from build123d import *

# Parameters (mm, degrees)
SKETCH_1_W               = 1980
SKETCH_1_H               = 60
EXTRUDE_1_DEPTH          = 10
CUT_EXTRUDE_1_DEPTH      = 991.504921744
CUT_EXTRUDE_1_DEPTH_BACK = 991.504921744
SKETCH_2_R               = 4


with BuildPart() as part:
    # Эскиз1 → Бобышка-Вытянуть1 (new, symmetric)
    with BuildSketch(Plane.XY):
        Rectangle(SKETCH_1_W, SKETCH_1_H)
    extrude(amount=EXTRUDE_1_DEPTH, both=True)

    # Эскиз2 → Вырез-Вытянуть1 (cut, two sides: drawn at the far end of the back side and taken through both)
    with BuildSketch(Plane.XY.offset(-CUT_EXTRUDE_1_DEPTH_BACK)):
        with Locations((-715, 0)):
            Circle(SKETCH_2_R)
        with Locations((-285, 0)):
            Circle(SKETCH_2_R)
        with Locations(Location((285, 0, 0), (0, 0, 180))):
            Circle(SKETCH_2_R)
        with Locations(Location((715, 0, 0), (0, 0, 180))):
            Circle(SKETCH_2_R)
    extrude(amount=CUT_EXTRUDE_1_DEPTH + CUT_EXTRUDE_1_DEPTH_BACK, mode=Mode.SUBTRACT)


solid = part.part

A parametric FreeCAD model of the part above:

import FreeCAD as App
import Part
import Sketcher
from FreeCAD import Vector
Q = App.Units.Quantity


def add_polygon(sketch, points):
    """Adds a closed chain of lines whose ends are joined by coincident constraints."""
    first, n = sketch.GeometryCount, len(points)
    for a, b in zip(points, points[1:] + points[:1]):
        sketch.addGeometry(Part.LineSegment(App.Vector(*a, 0), App.Vector(*b, 0)), False)
    for i in range(n):
        sketch.addConstraint(Sketcher.Constraint("Coincident", first + i, 2, first + (i + 1) % n, 1))

doc = App.newDocument("Part")
params = doc.addObject("Spreadsheet::Sheet", "Params")
for row, (alias, value) in enumerate([
    ("sketch1_width", "1980 mm"),
    ("sketch1_height", "60 mm"),
    ("pad1_length", "20 mm"),
    ("sketch2_diameter", "8 mm"),
], start=1):
    params.set(f"A{row}", alias)
    params.set(f"B{row}", "=" + value)
    params.setAlias(f"B{row}", alias)

body = doc.addObject("PartDesign::Body", "Body")

# Sketch on XY plane
sketch1 = body.newObject("Sketcher::SketchObject", "Sketch")
sketch1.AttachmentSupport = (doc.getObject("XY_Plane"), [""])
sketch1.MapMode = "FlatFace"
add_polygon(sketch1, [(-990, 30), (-990, -30), (990, -30), (990, 30)])  # lines 0-3
sketch1.addConstraint([
    Sketcher.Constraint("Vertical", 0),
    Sketcher.Constraint("Horizontal", 1),
    Sketcher.Constraint("Vertical", 2),
    Sketcher.Constraint("Horizontal", 3),
    Sketcher.Constraint("Symmetric", 0, 2, 2, 2, -1, 1),
    Sketcher.Constraint("DistanceX", 1, 1, 1, 2, Q("1980 mm")),
    Sketcher.Constraint("DistanceY", 0, 2, 0, 1, Q("60 mm")),
])
sketch1.setExpression("Constraints[9]", "Params.sketch1_width")
sketch1.setExpression("Constraints[10]", "Params.sketch1_height")
pad1 = body.newObject("PartDesign::Pad", "Pad")
pad1.Profile = sketch1
pad1.setExpression("Length", "Params.pad1_length")
pad1.Midplane = True

# Sketch on XY plane
sketch2 = body.newObject("Sketcher::SketchObject", "Sketch001")
sketch2.AttachmentSupport = (doc.getObject("XY_Plane"), [""])
sketch2.MapMode = "FlatFace"
sketch2.addGeometry([
    Part.Circle(Vector(-715, 0, 0), Vector(0, 0, 1), 4),
    Part.Circle(Vector(-285, 0, 0), Vector(0, 0, 1), 4),
    Part.Circle(Vector(285, 0, 0), Vector(0, 0, 1), 4),
    Part.Circle(Vector(715, 0, 0), Vector(0, 0, 1), 4),
], False)
sketch2.addConstraint([
    Sketcher.Constraint("Equal", 0, 1),
    Sketcher.Constraint("Equal", 1, 2),
    Sketcher.Constraint("Equal", 2, 3),
    Sketcher.Constraint("Symmetric", 1, 3, 2, 3, -1, 1),
    Sketcher.Constraint("Symmetric", 0, 3, 3, 3, -1, 1),
    Sketcher.Constraint("PointOnObject", 0, 3, -1),
    Sketcher.Constraint("PointOnObject", 1, 3, -1),
    Sketcher.Constraint("Diameter", 0, Q("8 mm")),
    Sketcher.Constraint("DistanceX", 0, 3, -1, 1, Q("715 mm")),
    Sketcher.Constraint("DistanceX", 1, 3, -1, 1, Q("285 mm")),
])
sketch2.setExpression("Constraints[7]", "Params.sketch2_diameter")
pocket1 = body.newObject("PartDesign::Pocket", "Pocket")
pocket1.Profile = sketch2
pocket1.Type = "ThroughAll"
pocket1.Midplane = True

doc.recompute()
